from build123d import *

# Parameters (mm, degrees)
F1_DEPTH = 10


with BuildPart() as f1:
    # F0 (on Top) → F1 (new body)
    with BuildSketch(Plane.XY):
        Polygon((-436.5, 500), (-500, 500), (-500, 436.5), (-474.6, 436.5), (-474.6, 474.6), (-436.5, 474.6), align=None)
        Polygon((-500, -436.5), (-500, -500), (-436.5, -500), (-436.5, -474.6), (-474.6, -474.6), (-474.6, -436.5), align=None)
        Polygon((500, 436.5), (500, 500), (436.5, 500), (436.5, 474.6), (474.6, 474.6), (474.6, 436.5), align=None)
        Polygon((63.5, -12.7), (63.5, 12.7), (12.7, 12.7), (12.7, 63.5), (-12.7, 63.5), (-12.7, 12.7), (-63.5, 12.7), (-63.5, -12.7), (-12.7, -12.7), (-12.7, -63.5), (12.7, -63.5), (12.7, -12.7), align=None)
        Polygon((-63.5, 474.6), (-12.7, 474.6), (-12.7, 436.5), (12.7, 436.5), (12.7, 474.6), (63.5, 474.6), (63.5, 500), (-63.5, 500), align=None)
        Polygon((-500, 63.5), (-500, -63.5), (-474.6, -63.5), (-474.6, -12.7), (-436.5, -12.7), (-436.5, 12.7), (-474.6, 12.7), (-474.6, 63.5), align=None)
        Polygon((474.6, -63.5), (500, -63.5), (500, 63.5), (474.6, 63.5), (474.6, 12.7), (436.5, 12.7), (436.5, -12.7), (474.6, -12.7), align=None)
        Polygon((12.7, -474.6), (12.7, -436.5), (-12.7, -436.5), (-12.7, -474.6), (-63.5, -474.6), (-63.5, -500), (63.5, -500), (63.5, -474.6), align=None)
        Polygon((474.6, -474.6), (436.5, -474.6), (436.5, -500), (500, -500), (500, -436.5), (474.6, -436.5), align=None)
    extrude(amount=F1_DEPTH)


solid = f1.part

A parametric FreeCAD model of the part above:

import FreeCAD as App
import Part
import Sketcher
Q = App.Units.Quantity

doc = App.newDocument("Part")
params = doc.addObject("Spreadsheet::Sheet", "Params")
for row, (alias, value) in enumerate([
    ("sketch1_width", "1 in"),
    ("sketch1_width2", "2 in"),
    ("sketch1_width3", "2.5 in"),
    ("pad1_length", "10 mm"),
], start=1):
    params.set(f"A{row}", alias)
    params.set(f"B{row}", "=" + value)
    params.setAlias(f"B{row}", alias)

body = doc.addObject("PartDesign::Body", "Body")
body.AllowCompound = True

sketch1 = body.newObject("Sketcher::SketchObject", "Sketch")
sketch1.AttachmentSupport = (doc.getObject("XY_Plane"), [""])
sketch1.MapMode = "FlatFace"
sketch1.addGeometry([
    Part.LineSegment(App.Vector(-436, 500, 0), App.Vector(-500, 500, 0)),
    Part.LineSegment(App.Vector(-500, 500, 0), App.Vector(-500, 436, 0)),
    Part.LineSegment(App.Vector(-500, 436, 0), App.Vector(-475, 436, 0)),
    Part.LineSegment(App.Vector(-475, 436, 0), App.Vector(-475, 475, 0)),
    Part.LineSegment(App.Vector(-475, 475, 0), App.Vector(-436, 475, 0)),
    Part.LineSegment(App.Vector(-436, 475, 0), App.Vector(-436, 500, 0)),
    Part.LineSegment(App.Vector(-500, -436, 0), App.Vector(-500, -500, 0)),
    Part.LineSegment(App.Vector(-500, -500, 0), App.Vector(-436, -500, 0)),
    Part.LineSegment(App.Vector(-436, -500, 0), App.Vector(-436, -475, 0)),
    Part.LineSegment(App.Vector(-436, -475, 0), App.Vector(-475, -475, 0)),
    Part.LineSegment(App.Vector(-475, -475, 0), App.Vector(-475, -436, 0)),
    Part.LineSegment(App.Vector(-475, -436, 0), App.Vector(-500, -436, 0)),
    Part.LineSegment(App.Vector(500, 436, 0), App.Vector(500, 500, 0)),
    Part.LineSegment(App.Vector(500, 500, 0), App.Vector(436, 500, 0)),
    Part.LineSegment(App.Vector(436, 500, 0), App.Vector(436, 475, 0)),
    Part.LineSegment(App.Vector(436, 475, 0), App.Vector(475, 475, 0)),
    Part.LineSegment(App.Vector(475, 475, 0), App.Vector(475, 436, 0)),
    Part.LineSegment(App.Vector(475, 436, 0), App.Vector(500, 436, 0)),
    Part.LineSegment(App.Vector(64, -13, 0), App.Vector(64, 13, 0)),
    Part.LineSegment(App.Vector(64, 13, 0), App.Vector(13, 13, 0)),
    Part.LineSegment(App.Vector(13, 13, 0), App.Vector(13, 64, 0)),
    Part.LineSegment(App.Vector(13, 64, 0), App.Vector(-13, 64, 0)),
    Part.LineSegment(App.Vector(-13, 64, 0), App.Vector(-13, 13, 0)),
    Part.LineSegment(App.Vector(-13, 13, 0), App.Vector(-64, 13, 0)),
    Part.LineSegment(App.Vector(-64, 13, 0), App.Vector(-64, -13, 0)),
    Part.LineSegment(App.Vector(-64, -13, 0), App.Vector(-13, -13, 0)),
    Part.LineSegment(App.Vector(-13, -13, 0), App.Vector(-13, -64, 0)),
    Part.LineSegment(App.Vector(-13, -64, 0), App.Vector(13, -64, 0)),
    Part.LineSegment(App.Vector(13, -64, 0), App.Vector(13, -13, 0)),
    Part.LineSegment(App.Vector(13, -13, 0), App.Vector(64, -13, 0)),
    Part.LineSegment(App.Vector(-64, 475, 0), App.Vector(-13, 475, 0)),
    Part.LineSegment(App.Vector(-13, 475, 0), App.Vector(-13, 436, 0)),
    Part.LineSegment(App.Vector(-13, 436, 0), App.Vector(13, 436, 0)),
    Part.LineSegment(App.Vector(13, 436, 0), App.Vector(13, 475, 0)),
    Part.LineSegment(App.Vector(13, 475, 0), App.Vector(64, 475, 0)),
    Part.LineSegment(App.Vector(64, 475, 0), App.Vector(64, 500, 0)),
    Part.LineSegment(App.Vector(64, 500, 0), App.Vector(-64, 500, 0)),
    Part.LineSegment(App.Vector(-64, 500, 0), App.Vector(-64, 475, 0)),
    Part.LineSegment(App.Vector(-500, 64, 0), App.Vector(-500, -64, 0)),
    Part.LineSegment(App.Vector(-500, -64, 0), App.Vector(-475, -64, 0)),
    Part.LineSegment(App.Vector(-475, -64, 0), App.Vector(-475, -13, 0)),
    Part.LineSegment(App.Vector(-475, -13, 0), App.Vector(-436, -13, 0)),
    Part.LineSegment(App.Vector(-436, -13, 0), App.Vector(-436, 13, 0)),
    Part.LineSegment(App.Vector(-436, 13, 0), App.Vector(-475, 13, 0)),
    Part.LineSegment(App.Vector(-475, 13, 0), App.Vector(-475, 64, 0)),
    Part.LineSegment(App.Vector(-475, 64, 0), App.Vector(-500, 64, 0)),
    Part.LineSegment(App.Vector(475, -64, 0), App.Vector(500, -64, 0)),
    Part.LineSegment(App.Vector(500, -64, 0), App.Vector(500, 64, 0)),
    Part.LineSegment(App.Vector(500, 64, 0), App.Vector(475, 64, 0)),
    Part.LineSegment(App.Vector(475, 64, 0), App.Vector(475, 13, 0)),
    Part.LineSegment(App.Vector(475, 13, 0), App.Vector(436, 13, 0)),
    Part.LineSegment(App.Vector(436, 13, 0), App.Vector(436, -13, 0)),
    Part.LineSegment(App.Vector(436, -13, 0), App.Vector(475, -13, 0)),
    Part.LineSegment(App.Vector(475, -13, 0), App.Vector(475, -64, 0)),
    Part.LineSegment(App.Vector(13, -475, 0), App.Vector(13, -436, 0)),
    Part.LineSegment(App.Vector(13, -436, 0), App.Vector(-13, -436, 0)),
    Part.LineSegment(App.Vector(-13, -436, 0), App.Vector(-13, -475, 0)),
    Part.LineSegment(App.Vector(-13, -475, 0), App.Vector(-64, -475, 0)),
    Part.LineSegment(App.Vector(-64, -475, 0), App.Vector(-64, -500, 0)),
    Part.LineSegment(App.Vector(-64, -500, 0), App.Vector(64, -500, 0)),
    Part.LineSegment(App.Vector(64, -500, 0), App.Vector(64, -475, 0)),
    Part.LineSegment(App.Vector(64, -475, 0), App.Vector(13, -475, 0)),
    Part.LineSegment(App.Vector(475, -475, 0), App.Vector(436, -475, 0)),
    Part.LineSegment(App.Vector(436, -475, 0), App.Vector(436, -500, 0)),
    Part.LineSegment(App.Vector(436, -500, 0), App.Vector(500, -500, 0)),
    Part.LineSegment(App.Vector(500, -500, 0), App.Vector(500, -436, 0)),
    Part.LineSegment(App.Vector(500, -436, 0), App.Vector(475, -436, 0)),
    Part.LineSegment(App.Vector(475, -436, 0), App.Vector(475, -475, 0)),
], False)
sketch1.addConstraint([
    Sketcher.Constraint("Coincident", 0, 2, 1, 1),
    Sketcher.Constraint("Coincident", 1, 2, 2, 1),
    Sketcher.Constraint("Coincident", 2, 2, 3, 1),
    Sketcher.Constraint("Coincident", 3, 2, 4, 1),
    Sketcher.Constraint("Coincident", 4, 2, 5, 1),
    Sketcher.Constraint("Coincident", 5, 2, 0, 1),
    Sketcher.Constraint("Coincident", 6, 2, 7, 1),
    Sketcher.Constraint("Coincident", 7, 2, 8, 1),
    Sketcher.Constraint("Coincident", 8, 2, 9, 1),
    Sketcher.Constraint("Coincident", 9, 2, 10, 1),
    Sketcher.Constraint("Coincident", 10, 2, 11, 1),
    Sketcher.Constraint("Coincident", 11, 2, 6, 1),
    Sketcher.Constraint("Coincident", 12, 2, 13, 1),
    Sketcher.Constraint("Coincident", 13, 2, 14, 1),
    Sketcher.Constraint("Coincident", 14, 2, 15, 1),
    Sketcher.Constraint("Coincident", 15, 2, 16, 1),
    Sketcher.Constraint("Coincident", 16, 2, 17, 1),
    Sketcher.Constraint("Coincident", 17, 2, 12, 1),
    Sketcher.Constraint("Coincident", 18, 2, 19, 1),
    Sketcher.Constraint("Coincident", 19, 2, 20, 1),
    Sketcher.Constraint("Coincident", 20, 2, 21, 1),
    Sketcher.Constraint("Coincident", 21, 2, 22, 1),
    Sketcher.Constraint("Coincident", 22, 2, 23, 1),
    Sketcher.Constraint("Coincident", 23, 2, 24, 1),
    Sketcher.Constraint("Coincident", 24, 2, 25, 1),
    Sketcher.Constraint("Coincident", 25, 2, 26, 1),
    Sketcher.Constraint("Coincident", 26, 2, 27, 1),
    Sketcher.Constraint("Coincident", 27, 2, 28, 1),
    Sketcher.Constraint("Coincident", 28, 2, 29, 1),
    Sketcher.Constraint("Coincident", 29, 2, 18, 1),
    Sketcher.Constraint("Coincident", 30, 2, 31, 1),
    Sketcher.Constraint("Coincident", 31, 2, 32, 1),
    Sketcher.Constraint("Coincident", 32, 2, 33, 1),
    Sketcher.Constraint("Coincident", 33, 2, 34, 1),
    Sketcher.Constraint("Coincident", 34, 2, 35, 1),
    Sketcher.Constraint("Coincident", 35, 2, 36, 1),
    Sketcher.Constraint("Coincident", 36, 2, 37, 1),
    Sketcher.Constraint("Coincident", 37, 2, 30, 1),
    Sketcher.Constraint("Coincident", 38, 2, 39, 1),
    Sketcher.Constraint("Coincident", 39, 2, 40, 1),
    Sketcher.Constraint("Coincident", 40, 2, 41, 1),
    Sketcher.Constraint("Coincident", 41, 2, 42, 1),
    Sketcher.Constraint("Coincident", 42, 2, 43, 1),
    Sketcher.Constraint("Coincident", 43, 2, 44, 1),
    Sketcher.Constraint("Coincident", 44, 2, 45, 1),
    Sketcher.Constraint("Coincident", 45, 2, 38, 1),
    Sketcher.Constraint("Coincident", 46, 2, 47, 1),
    Sketcher.Constraint("Coincident", 47, 2, 48, 1),
    Sketcher.Constraint("Coincident", 48, 2, 49, 1),
    Sketcher.Constraint("Coincident", 49, 2, 50, 1),
    Sketcher.Constraint("Coincident", 50, 2, 51, 1),
    Sketcher.Constraint("Coincident", 51, 2, 52, 1),
    Sketcher.Constraint("Coincident", 52, 2, 53, 1),
    Sketcher.Constraint("Coincident", 53, 2, 46, 1),
    Sketcher.Constraint("Coincident", 54, 2, 55, 1),
    Sketcher.Constraint("Coincident", 55, 2, 56, 1),
    Sketcher.Constraint("Coincident", 56, 2, 57, 1),
    Sketcher.Constraint("Coincident", 57, 2, 58, 1),
    Sketcher.Constraint("Coincident", 58, 2, 59, 1),
    Sketcher.Constraint("Coincident", 59, 2, 60, 1),
    Sketcher.Constraint("Coincident", 60, 2, 61, 1),
    Sketcher.Constraint("Coincident", 61, 2, 54, 1),
    Sketcher.Constraint("Coincident", 62, 2, 63, 1),
    Sketcher.Constraint("Coincident", 63, 2, 64, 1),
    Sketcher.Constraint("Coincident", 64, 2, 65, 1),
    Sketcher.Constraint("Coincident", 65, 2, 66, 1),
    Sketcher.Constraint("Coincident", 66, 2, 67, 1),
    Sketcher.Constraint("Coincident", 67, 2, 62, 1),
    Sketcher.Constraint("Horizontal", 0),
    Sketcher.Constraint("Vertical", 1),
    Sketcher.Constraint("Horizontal", 2),
    Sketcher.Constraint("Vertical", 3),
    Sketcher.Constraint("Horizontal", 4),
    Sketcher.Constraint("Vertical", 5),
    Sketcher.Constraint("Vertical", 6),
    Sketcher.Constraint("Horizontal", 7),
    Sketcher.Constraint("Vertical", 8),
    Sketcher.Constraint("Horizontal", 9),
    Sketcher.Constraint("Vertical", 10),
    Sketcher.Constraint("Horizontal", 11),
    Sketcher.Constraint("Vertical", 12),
    Sketcher.Constraint("Horizontal", 13),
    Sketcher.Constraint("Vertical", 14),
    Sketcher.Constraint("Horizontal", 15),
    Sketcher.Constraint("Vertical", 16),
    Sketcher.Constraint("Horizontal", 17),
    Sketcher.Constraint("Vertical", 18),
    Sketcher.Constraint("Horizontal", 19),
    Sketcher.Constraint("Vertical", 20),
    Sketcher.Constraint("Horizontal", 21),
    Sketcher.Constraint("Vertical", 22),
    Sketcher.Constraint("Horizontal", 23),
    Sketcher.Constraint("Vertical", 24),
    Sketcher.Constraint("Horizontal", 25),
    Sketcher.Constraint("Vertical", 26),
    Sketcher.Constraint("Horizontal", 27),
    Sketcher.Constraint("Vertical", 28),
    Sketcher.Constraint("Horizontal", 29),
    Sketcher.Constraint("Horizontal", 30),
    Sketcher.Constraint("Vertical", 31),
    Sketcher.Constraint("Horizontal", 32),
    Sketcher.Constraint("Vertical", 33),
    Sketcher.Constraint("Horizontal", 34),
    Sketcher.Constraint("Vertical", 35),
    Sketcher.Constraint("Horizontal", 36),
    Sketcher.Constraint("Vertical", 37),
    Sketcher.Constraint("Vertical", 38),
    Sketcher.Constraint("Horizontal", 39),
    Sketcher.Constraint("Vertical", 40),
    Sketcher.Constraint("Horizontal", 41),
    Sketcher.Constraint("Vertical", 42),
    Sketcher.Constraint("Horizontal", 43),
    Sketcher.Constraint("Vertical", 44),
    Sketcher.Constraint("Horizontal", 45),
    Sketcher.Constraint("Horizontal", 46),
    Sketcher.Constraint("Vertical", 47),
    Sketcher.Constraint("Horizontal", 48),
    Sketcher.Constraint("Vertical", 49),
    Sketcher.Constraint("Horizontal", 50),
    Sketcher.Constraint("Vertical", 51),
    Sketcher.Constraint("Horizontal", 52),
    Sketcher.Constraint("Vertical", 53),
    Sketcher.Constraint("Vertical", 54),
    Sketcher.Constraint("Horizontal", 55),
    Sketcher.Constraint("Vertical", 56),
    Sketcher.Constraint("Horizontal", 57),
    Sketcher.Constraint("Vertical", 58),
    Sketcher.Constraint("Horizontal", 59),
    Sketcher.Constraint("Vertical", 60),
    Sketcher.Constraint("Horizontal", 61),
    Sketcher.Constraint("Horizontal", 62),
    Sketcher.Constraint("Vertical", 63),
    Sketcher.Constraint("Horizontal", 64),
    Sketcher.Constraint("Vertical", 65),
    Sketcher.Constraint("Horizontal", 66),
    Sketcher.Constraint("Vertical", 67),
    Sketcher.Constraint("Symmetric", 6, 2, 12, 2, -1, 1),
    Sketcher.Constraint("Symmetric", 8, 2, 14, 2, -1, 1),
    Sketcher.Constraint("Symmetric", 10, 2, 16, 2, -1, 1),
    Sketcher.Constraint("Symmetric", 18, 2, 24, 2, -1, 1),
    Sketcher.Constraint("Symmetric", 20, 2, 26, 2, -1, 1),
    Sketcher.Constraint("Symmetric", 22, 2, 28, 2, -1, 1),
    Sketcher.Constraint("Symmetric", 45, 2, 46, 2, -1, 1),
    Sketcher.Constraint("Symmetric", 39, 2, 48, 2, -1, 1),
    Sketcher.Constraint("Symmetric", 41, 2, 50, 2, -1, 1),
    Sketcher.Constraint("Symmetric", 43, 2, 52, 2, -1, 1),
    Sketcher.Constraint("Symmetric", 31, 2, 54, 2, -1, 1),
    Sketcher.Constraint("Symmetric", 33, 2, 56, 2, -1, 1),
    Sketcher.Constraint("Symmetric", 35, 2, 58, 2, -1, 1),
    Sketcher.Constraint("Symmetric", 37, 2, 60, 2, -1, 1),
    Sketcher.Constraint("Symmetric", 4, 2, 62, 2, -1, 1),
    Sketcher.Constraint("Symmetric", 0, 2, 64, 2, -1, 1),
    Sketcher.Constraint("Symmetric", 2, 2, 66, 2, -1, 1),
    Sketcher.Constraint("Symmetric", 0, 2, 12, 2, -2),
    Sketcher.Constraint("Symmetric", 4, 2, 14, 2, -2),
    Sketcher.Constraint("Symmetric", 2, 2, 16, 2, -2),
    Sketcher.Constraint("Symmetric", 19, 2, 22, 2, -2),
    Sketcher.Constraint("Symmetric", 30, 2, 33, 2, -2),
    Sketcher.Constraint("Symmetric", 44, 2, 48, 2, -2),
    Sketcher.Constraint("Horizontal", 15, 2, 30, 2),
    Sketcher.Constraint("Horizontal", 17, 2, 31, 2),
    Sketcher.Constraint("Horizontal", 13, 2, 35, 2),
    Sketcher.Constraint("Horizontal", 27, 2, 38, 2),
    Sketcher.Constraint("Horizontal", 29, 2, 40, 2),
    Sketcher.Constraint("Horizontal", 23, 2, 42, 2),
    Sketcher.Constraint("Vertical", 26, 2, 30, 2),
    Sketcher.Constraint("Vertical", 29, 2, 34, 2),
    Sketcher.Constraint("Vertical", 24, 2, 36, 2),
    Sketcher.Constraint("Vertical", 11, 2, 38, 2),
    Sketcher.Constraint("Vertical", 10, 2, 39, 2),
    Sketcher.Constraint("Vertical", 8, 2, 41, 2),
    Sketcher.Constraint("Equal", 17, 21),
    Sketcher.Constraint("Equal", 64, 1),
    Sketcher.Constraint("Equal", 62, 3),
    Sketcher.Constraint("Equal", 14, 18),
    Sketcher.Constraint("Equal", 61, 20),
    Sketcher.Constraint("DistanceX", 2, 1, 2, 2, Q("1 in")),
    Sketcher.Constraint("DistanceX", 19, 2, 19, 1, Q("2 in")),
    Sketcher.Constraint("DistanceX", 0, 2, 0, 1, Q("2.5 in")),
    Sketcher.Constraint("DistanceX", 0, 2, -1, 1, 500.0),
    Sketcher.Constraint("DistanceY", -1, 1, 0, 2, 500.0),
])
sketch1.setExpression("Constraints[176]", "Params.sketch1_width")
sketch1.setExpression("Constraints[177]", "Params.sketch1_width2")
sketch1.setExpression("Constraints[178]", "Params.sketch1_width3")
pad1 = body.newObject("PartDesign::Pad", "Pad")
pad1.Profile = sketch1
pad1.setExpression("Length", "Params.pad1_length")

doc.recompute()
